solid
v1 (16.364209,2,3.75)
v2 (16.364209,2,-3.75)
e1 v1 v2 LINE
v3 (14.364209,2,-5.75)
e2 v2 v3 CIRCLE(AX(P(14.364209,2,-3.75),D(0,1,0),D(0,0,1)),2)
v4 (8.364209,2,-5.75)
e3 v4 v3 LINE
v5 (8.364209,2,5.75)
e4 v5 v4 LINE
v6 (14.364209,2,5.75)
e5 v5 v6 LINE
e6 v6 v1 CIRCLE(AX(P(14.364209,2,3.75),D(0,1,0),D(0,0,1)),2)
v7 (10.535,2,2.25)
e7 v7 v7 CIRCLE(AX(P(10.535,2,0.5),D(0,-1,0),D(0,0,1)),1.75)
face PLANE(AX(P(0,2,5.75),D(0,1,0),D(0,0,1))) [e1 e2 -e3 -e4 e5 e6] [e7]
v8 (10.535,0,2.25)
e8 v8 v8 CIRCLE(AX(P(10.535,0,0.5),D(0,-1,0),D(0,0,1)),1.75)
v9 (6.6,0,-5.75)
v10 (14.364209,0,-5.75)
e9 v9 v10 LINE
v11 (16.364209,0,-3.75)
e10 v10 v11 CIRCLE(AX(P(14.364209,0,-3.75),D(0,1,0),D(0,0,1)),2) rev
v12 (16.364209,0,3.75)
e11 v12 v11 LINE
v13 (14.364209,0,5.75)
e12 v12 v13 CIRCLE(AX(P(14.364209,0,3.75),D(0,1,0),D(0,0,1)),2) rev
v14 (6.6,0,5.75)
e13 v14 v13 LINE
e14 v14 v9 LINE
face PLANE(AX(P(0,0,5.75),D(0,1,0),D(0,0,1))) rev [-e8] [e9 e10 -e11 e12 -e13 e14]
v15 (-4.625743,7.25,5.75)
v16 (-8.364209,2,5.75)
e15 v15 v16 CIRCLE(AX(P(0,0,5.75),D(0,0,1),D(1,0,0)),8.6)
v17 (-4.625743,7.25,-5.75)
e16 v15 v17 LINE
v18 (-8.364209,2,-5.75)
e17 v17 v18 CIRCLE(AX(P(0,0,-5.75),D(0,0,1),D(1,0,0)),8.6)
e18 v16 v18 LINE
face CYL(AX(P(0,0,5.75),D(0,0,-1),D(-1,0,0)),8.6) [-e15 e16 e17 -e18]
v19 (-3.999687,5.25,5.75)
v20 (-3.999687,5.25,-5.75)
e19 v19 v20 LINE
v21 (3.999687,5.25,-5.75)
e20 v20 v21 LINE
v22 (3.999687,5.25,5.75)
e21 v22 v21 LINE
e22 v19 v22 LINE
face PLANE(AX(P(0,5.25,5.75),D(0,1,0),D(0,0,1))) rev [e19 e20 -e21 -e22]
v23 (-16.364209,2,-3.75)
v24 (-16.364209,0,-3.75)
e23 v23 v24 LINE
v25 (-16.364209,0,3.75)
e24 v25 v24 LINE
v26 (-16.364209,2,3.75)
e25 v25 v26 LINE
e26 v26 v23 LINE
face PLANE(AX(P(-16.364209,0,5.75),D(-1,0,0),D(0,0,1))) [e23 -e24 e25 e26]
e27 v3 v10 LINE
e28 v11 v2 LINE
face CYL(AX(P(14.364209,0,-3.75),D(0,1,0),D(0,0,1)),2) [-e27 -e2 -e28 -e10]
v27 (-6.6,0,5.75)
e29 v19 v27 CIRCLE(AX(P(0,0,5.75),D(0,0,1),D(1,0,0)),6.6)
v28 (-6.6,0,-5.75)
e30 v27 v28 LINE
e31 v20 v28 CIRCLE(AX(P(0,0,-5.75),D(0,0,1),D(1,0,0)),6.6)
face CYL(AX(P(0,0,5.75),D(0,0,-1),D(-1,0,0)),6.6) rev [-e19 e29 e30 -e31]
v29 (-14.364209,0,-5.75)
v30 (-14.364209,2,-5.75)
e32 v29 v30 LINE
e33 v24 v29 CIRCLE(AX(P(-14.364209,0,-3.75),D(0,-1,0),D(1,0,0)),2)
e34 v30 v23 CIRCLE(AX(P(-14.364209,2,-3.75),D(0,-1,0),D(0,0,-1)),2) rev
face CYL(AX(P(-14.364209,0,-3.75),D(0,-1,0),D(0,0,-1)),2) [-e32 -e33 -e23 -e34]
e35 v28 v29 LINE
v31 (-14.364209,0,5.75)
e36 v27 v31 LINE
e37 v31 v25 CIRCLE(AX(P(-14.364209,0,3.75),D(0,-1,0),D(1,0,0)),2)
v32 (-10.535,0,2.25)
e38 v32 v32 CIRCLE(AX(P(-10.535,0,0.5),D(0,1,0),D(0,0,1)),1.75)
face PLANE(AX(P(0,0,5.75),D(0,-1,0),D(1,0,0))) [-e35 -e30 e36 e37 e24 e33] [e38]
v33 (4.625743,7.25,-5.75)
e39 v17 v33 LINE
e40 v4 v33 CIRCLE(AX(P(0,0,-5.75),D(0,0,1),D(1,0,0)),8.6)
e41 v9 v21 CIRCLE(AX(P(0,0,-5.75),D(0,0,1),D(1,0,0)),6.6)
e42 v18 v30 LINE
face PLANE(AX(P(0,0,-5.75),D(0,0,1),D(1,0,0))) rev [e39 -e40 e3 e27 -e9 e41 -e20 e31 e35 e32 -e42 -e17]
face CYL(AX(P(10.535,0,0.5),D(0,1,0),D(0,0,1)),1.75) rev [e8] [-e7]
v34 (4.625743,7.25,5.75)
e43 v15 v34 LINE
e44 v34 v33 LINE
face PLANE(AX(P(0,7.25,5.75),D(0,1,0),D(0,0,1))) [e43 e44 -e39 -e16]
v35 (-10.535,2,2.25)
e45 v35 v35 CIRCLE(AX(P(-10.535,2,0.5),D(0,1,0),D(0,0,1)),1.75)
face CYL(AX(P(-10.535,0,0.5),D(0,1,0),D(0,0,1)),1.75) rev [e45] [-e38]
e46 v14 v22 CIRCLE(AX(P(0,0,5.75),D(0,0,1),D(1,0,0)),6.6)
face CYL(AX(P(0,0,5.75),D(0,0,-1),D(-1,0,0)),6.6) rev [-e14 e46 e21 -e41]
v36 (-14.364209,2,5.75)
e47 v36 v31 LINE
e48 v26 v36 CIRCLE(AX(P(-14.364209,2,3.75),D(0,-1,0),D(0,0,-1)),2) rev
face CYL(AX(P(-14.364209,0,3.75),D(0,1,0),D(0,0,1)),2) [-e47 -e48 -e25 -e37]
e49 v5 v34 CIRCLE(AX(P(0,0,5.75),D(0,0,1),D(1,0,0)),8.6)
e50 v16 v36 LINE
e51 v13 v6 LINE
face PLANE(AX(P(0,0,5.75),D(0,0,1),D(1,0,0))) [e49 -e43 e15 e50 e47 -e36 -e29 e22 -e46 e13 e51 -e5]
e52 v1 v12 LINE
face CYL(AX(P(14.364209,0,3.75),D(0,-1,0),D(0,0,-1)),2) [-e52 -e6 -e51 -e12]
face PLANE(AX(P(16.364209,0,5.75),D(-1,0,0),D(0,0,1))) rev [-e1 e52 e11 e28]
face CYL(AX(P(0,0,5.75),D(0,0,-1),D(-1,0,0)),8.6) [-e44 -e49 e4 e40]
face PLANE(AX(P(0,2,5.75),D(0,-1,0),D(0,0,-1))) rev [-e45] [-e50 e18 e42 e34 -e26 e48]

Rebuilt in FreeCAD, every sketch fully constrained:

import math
import FreeCAD as App
import Part
import Sketcher

V = App.Vector
Q = App.Units.Quantity


def edges_at(feature, points):
    """Names of the edges that pass closest to the given points."""
    edges = feature.Shape.Edges
    near = lambda p: min(range(len(edges)), key=lambda i: edges[i].distToShape(Part.Vertex(*p))[0])
    return sorted({f"Edge{near(p) + 1}" for p in points})

doc = App.newDocument("Part")
params = doc.addObject("Spreadsheet::Sheet", "Params")
for row, (alias, value) in enumerate([
    ("sketch1_radius", "8.6 mm"),
    ("sketch1_width", "8 mm"),
    ("sketch1_height", "2 mm"),
    ("pad1_length", "11.5 mm"),
    ("sketch2_radius", "8.6 mm"),
    ("sketch2_width", "8 mm"),
    ("sketch2_height", "2 mm"),
    ("pad2_length", "11.5 mm"),
    ("sketch3_radius", "8.6 mm"),
    ("sketch3_radius2", "6.6 mm"),
    ("pad3_length", "11.5 mm"),
    ("sketch4_diameter", "3.5 mm"),
    ("fillet_radius", "2 mm"),
], start=1):
    params.set(f"A{row}", alias)
    params.set(f"B{row}", "=" + value)
    params.setAlias(f"B{row}", alias)

body = doc.addObject("PartDesign::Body", "Body")

sketch1 = doc.addObject("Sketcher::SketchObject", "Sketch")
body.addObject(sketch1)
sketch1.AttachmentSupport = (doc.XY_Plane, [""])
sketch1.MapMode = "FlatFace"
sketch1.addGeometry([
    Part.ArcOfCircle(Part.Circle(V(0, 0, 0), V(0, 0, 1), 8.6), math.radians(0), math.radians(13.45)),
    Part.LineSegment(V(8.6, 0, 0), V(16.4, 0, 0)),
    Part.LineSegment(V(16.4, 0, 0), V(16.4, 2, 0)),
    Part.LineSegment(V(16.4, 2, 0), V(8.4, 2, 0)),
], False)
sketch1.addConstraint([
    Sketcher.Constraint("Coincident", 0, 1, 1, 1),
    Sketcher.Constraint("Coincident", 1, 2, 2, 1),
    Sketcher.Constraint("Coincident", 2, 2, 3, 1),
    Sketcher.Constraint("Coincident", 3, 2, 0, 2),
    Sketcher.Constraint("Horizontal", 1),
    Sketcher.Constraint("Vertical", 2),
    Sketcher.Constraint("Horizontal", 3),
    Sketcher.Constraint("Coincident", 0, 3, -1, 1),
    Sketcher.Constraint("PointOnObject", 0, 1, -1),
    Sketcher.Constraint("Radius", 0, Q("8.6 mm")),
    Sketcher.Constraint("DistanceX", 3, 2, 3, 1, Q("8 mm")),
    Sketcher.Constraint("DistanceY", 2, 1, 2, 2, Q("2 mm")),
])
sketch1.setExpression("Constraints[9]", "Params.sketch1_radius")
sketch1.setExpression("Constraints[10]", "Params.sketch1_width")
sketch1.setExpression("Constraints[11]", "Params.sketch1_height")
pad1 = doc.addObject("PartDesign::Pad", "Pad")
body.addObject(pad1)
pad1.Profile = sketch1
pad1.setExpression("Length", "Params.pad1_length")
pad1.Midplane = True
body2 = doc.addObject("PartDesign::Body", "Body001")

sketch2 = doc.addObject("Sketcher::SketchObject", "Sketch001")
body2.addObject(sketch2)
sketch2.AttachmentSupport = (doc.getObject("XY_Plane001"), [""])
sketch2.MapMode = "FlatFace"
sketch2.addGeometry([
    Part.LineSegment(V(-16.4, 0, 0), V(-8.6, 0, 0)),
    Part.ArcOfCircle(Part.Circle(V(0, 0, 0), V(0, 0, 1), 8.6), math.radians(166.55), math.radians(180)),
    Part.LineSegment(V(-8.4, 2, 0), V(-16.4, 2, 0)),
    Part.LineSegment(V(-16.4, 2, 0), V(-16.4, 0, 0)),
], False)
sketch2.addConstraint([
    Sketcher.Constraint("Coincident", 0, 2, 1, 2),
    Sketcher.Constraint("Coincident", 1, 1, 2, 1),
    Sketcher.Constraint("Coincident", 2, 2, 3, 1),
    Sketcher.Constraint("Coincident", 3, 2, 0, 1),
    Sketcher.Constraint("Horizontal", 0),
    Sketcher.Constraint("Horizontal", 2),
    Sketcher.Constraint("Vertical", 3),
    Sketcher.Constraint("Coincident", 1, 3, -1, 1),
    Sketcher.Constraint("PointOnObject", 0, 2, -1),
    Sketcher.Constraint("Radius", 1, Q("8.6 mm")),
    Sketcher.Constraint("DistanceX", 2, 2, 2, 1, Q("8 mm")),
    Sketcher.Constraint("DistanceY", 3, 2, 3, 1, Q("2 mm")),
])
sketch2.setExpression("Constraints[9]", "Params.sketch2_radius")
sketch2.setExpression("Constraints[10]", "Params.sketch2_width")
sketch2.setExpression("Constraints[11]", "Params.sketch2_height")
pad2 = doc.addObject("PartDesign::Pad", "Pad001")
body2.addObject(pad2)
pad2.Profile = sketch2
pad2.setExpression("Length", "Params.pad2_length")
pad2.Midplane = True
body.AllowCompound = True
doc.recompute()

boolean = doc.addObject("PartDesign::Boolean", "Boolean")
body.addObject(boolean)
boolean.Type = "Fuse"
boolean.addObjects([body2])

sketch3 = doc.addObject("Sketcher::SketchObject", "Sketch002")
body.addObject(sketch3)
sketch3.AttachmentSupport = (doc.XY_Plane, [""])
sketch3.MapMode = "FlatFace"
sketch3.addGeometry([
    Part.LineSegment(V(6.6, 0, 0), V(8.6, 0, 0)),
    Part.ArcOfCircle(Part.Circle(V(0, 0, 0), V(0, 0, 1), 8.6), math.radians(0), math.radians(57)),
    Part.LineSegment(V(4.6, 7.2, 0), V(-4.6, 7.2, 0)),
    Part.ArcOfCircle(Part.Circle(V(0, 0, 0), V(0, 0, 1), 8.6), math.radians(123), math.radians(180)),
    Part.LineSegment(V(-8.6, 0, 0), V(-6.6, 0, 0)),
    Part.ArcOfCircle(Part.Circle(V(0, 0, 0), V(0, 0, 1), 6.6), math.radians(127), math.radians(180)),
    Part.LineSegment(V(-4, 5.2, 0), V(4, 5.2, 0)),
    Part.ArcOfCircle(Part.Circle(V(0, 0, 0), V(0, 0, 1), 6.6), math.radians(0), math.radians(53)),
], False)
sketch3.addConstraint([
    Sketcher.Constraint("Coincident", 0, 2, 1, 1),
    Sketcher.Constraint("Coincident", 1, 2, 2, 1),
    Sketcher.Constraint("Coincident", 2, 2, 3, 1),
    Sketcher.Constraint("Coincident", 3, 2, 4, 1),
    Sketcher.Constraint("Coincident", 4, 2, 5, 2),
    Sketcher.Constraint("Coincident", 5, 1, 6, 1),
    Sketcher.Constraint("Coincident", 6, 2, 7, 2),
    Sketcher.Constraint("Coincident", 7, 1, 0, 1),
    Sketcher.Constraint("Horizontal", 0),
    Sketcher.Constraint("Horizontal", 2),
    Sketcher.Constraint("Horizontal", 4),
    Sketcher.Constraint("Horizontal", 6),
    Sketcher.Constraint("Coincident", 1, 3, -1, 1),
    Sketcher.Constraint("Coincident", 3, 3, -1, 1),
    Sketcher.Constraint("Coincident", 5, 3, -1, 1),
    Sketcher.Constraint("Coincident", 7, 3, -1, 1),
    Sketcher.Constraint("Equal", 1, 3),
    Sketcher.Constraint("Equal", 5, 7),
    Sketcher.Constraint("PointOnObject", 0, 2, -1),
    Sketcher.Constraint("PointOnObject", 3, 2, -1),
    Sketcher.Constraint("Radius", 1, Q("8.6 mm")),
    Sketcher.Constraint("Radius", 5, Q("6.6 mm")),
    Sketcher.Constraint("DistanceY", 5, 1, 2, 2, Q("2 mm")),
    Sketcher.Constraint("DistanceY", -1, 1, 1, 2, Q("7.25 mm")),
])
sketch3.setExpression("Constraints[20]", "Params.sketch3_radius")
sketch3.setExpression("Constraints[21]", "Params.sketch3_radius2")
pad3 = doc.addObject("PartDesign::Pad", "Pad002")
body.addObject(pad3)
pad3.Profile = sketch3
pad3.setExpression("Length", "Params.pad3_length")
pad3.Midplane = True

sketch4 = doc.addObject("Sketcher::SketchObject", "Sketch003")
body.addObject(sketch4)
sketch4.AttachmentSupport = (doc.XZ_Plane, [""])
sketch4.MapMode = "FlatFace"
sketch4.AttachmentOffset = App.Placement(V(0, 0, -2), App.Rotation())
sketch4.addGeometry(Part.Circle(V(-10.5, 0.5, 0), V(0, 0, 1), 1.8), False)
sketch4.addConstraint([
    Sketcher.Constraint("Diameter", 0, Q("3.5 mm")),
    Sketcher.Constraint("DistanceY", -1, 1, 0, 3, Q("0.5 mm")),
    Sketcher.Constraint("DistanceX", 0, 3, -1, 1, Q("10.535 mm")),
])
sketch4.setExpression("Constraints[0]", "Params.sketch4_diameter")
pocket1 = doc.addObject("PartDesign::Pocket", "Pocket")
body.addObject(pocket1)
pocket1.Profile = sketch4
pocket1.Type = "ThroughAll"
pocket1.Reversed = True
doc.recompute()

mirrored = doc.addObject("PartDesign::Mirrored", "Mirrored")
body.addObject(mirrored)
mirrored.Originals = [pocket1]
mirrored.MirrorPlane = (doc.YZ_Plane, [""])
body.Tip = mirrored
doc.recompute()

fillet = doc.addObject("PartDesign::Fillet", "Fillet")
body.addObject(fillet)
fillet.Base = (mirrored, edges_at(mirrored, [
    (16.364, 1, 5.75),
    (-16.364, 1, 5.75),
    (-16.364, 1, -5.75),
    (16.364, 1, -5.75),
]))
fillet.setExpression("Radius", "Params.fillet_radius")

doc.recompute()
